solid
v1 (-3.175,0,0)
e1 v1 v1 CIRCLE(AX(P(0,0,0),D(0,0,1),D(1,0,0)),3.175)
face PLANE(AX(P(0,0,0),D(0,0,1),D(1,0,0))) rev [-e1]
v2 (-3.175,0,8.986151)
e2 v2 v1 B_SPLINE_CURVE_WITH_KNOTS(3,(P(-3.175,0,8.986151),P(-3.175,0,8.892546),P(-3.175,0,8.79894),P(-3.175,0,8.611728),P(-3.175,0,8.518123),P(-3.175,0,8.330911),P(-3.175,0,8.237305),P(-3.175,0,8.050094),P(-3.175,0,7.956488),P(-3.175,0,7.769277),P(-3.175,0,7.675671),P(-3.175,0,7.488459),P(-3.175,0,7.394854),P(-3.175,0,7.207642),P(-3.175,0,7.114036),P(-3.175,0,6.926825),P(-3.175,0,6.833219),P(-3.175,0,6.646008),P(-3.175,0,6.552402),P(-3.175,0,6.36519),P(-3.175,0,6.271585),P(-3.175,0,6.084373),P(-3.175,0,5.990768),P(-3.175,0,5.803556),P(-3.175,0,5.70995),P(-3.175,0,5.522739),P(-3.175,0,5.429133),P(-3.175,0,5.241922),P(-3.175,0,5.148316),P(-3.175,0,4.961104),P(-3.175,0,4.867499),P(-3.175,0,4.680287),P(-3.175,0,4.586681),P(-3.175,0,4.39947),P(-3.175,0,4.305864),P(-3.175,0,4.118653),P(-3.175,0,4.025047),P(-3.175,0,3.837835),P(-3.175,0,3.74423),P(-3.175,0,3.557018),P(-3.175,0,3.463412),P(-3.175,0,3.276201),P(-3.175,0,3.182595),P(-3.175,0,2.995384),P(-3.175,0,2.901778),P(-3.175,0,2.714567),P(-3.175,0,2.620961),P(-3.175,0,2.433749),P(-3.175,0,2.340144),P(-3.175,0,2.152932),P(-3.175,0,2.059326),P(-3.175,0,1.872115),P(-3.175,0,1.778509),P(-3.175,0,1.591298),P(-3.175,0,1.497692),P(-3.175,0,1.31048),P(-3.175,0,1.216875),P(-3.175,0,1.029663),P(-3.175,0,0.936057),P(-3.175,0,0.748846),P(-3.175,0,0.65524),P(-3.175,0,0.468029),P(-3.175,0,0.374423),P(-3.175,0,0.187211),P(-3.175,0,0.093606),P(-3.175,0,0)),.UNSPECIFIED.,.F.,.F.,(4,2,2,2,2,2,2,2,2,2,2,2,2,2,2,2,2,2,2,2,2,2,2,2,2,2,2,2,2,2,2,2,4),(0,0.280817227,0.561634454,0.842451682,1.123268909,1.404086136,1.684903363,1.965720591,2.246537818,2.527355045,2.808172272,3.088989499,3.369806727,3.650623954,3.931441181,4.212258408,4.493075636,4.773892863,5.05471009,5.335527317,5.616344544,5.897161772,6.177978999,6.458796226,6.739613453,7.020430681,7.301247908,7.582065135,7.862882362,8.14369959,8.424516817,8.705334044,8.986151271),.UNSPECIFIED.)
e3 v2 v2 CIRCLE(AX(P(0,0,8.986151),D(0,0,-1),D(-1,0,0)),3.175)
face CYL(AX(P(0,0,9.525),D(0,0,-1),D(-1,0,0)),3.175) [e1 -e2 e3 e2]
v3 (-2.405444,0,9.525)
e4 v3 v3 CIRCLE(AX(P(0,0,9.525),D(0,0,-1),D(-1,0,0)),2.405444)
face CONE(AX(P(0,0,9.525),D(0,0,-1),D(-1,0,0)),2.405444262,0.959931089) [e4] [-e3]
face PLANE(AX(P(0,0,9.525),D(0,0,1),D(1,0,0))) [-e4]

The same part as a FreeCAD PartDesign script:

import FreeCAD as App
import Part
import Sketcher
from FreeCAD import Vector
Q = App.Units.Quantity


def add_polygon(sketch, points):
    """Adds a closed chain of lines whose ends are joined by coincident constraints."""
    first, n = sketch.GeometryCount, len(points)
    for a, b in zip(points, points[1:] + points[:1]):
        sketch.addGeometry(Part.LineSegment(App.Vector(*a, 0), App.Vector(*b, 0)), False)
    for i in range(n):
        sketch.addConstraint(Sketcher.Constraint("Coincident", first + i, 2, first + (i + 1) % n, 1))

doc = App.newDocument("Part")
body = doc.addObject("PartDesign::Body", "Body")

# Sketch on XY plane
sketch1 = body.newObject("Sketcher::SketchObject", "Sketch")
sketch1.AttachmentSupport = (doc.getObject("XY_Plane"), [""])
sketch1.MapMode = "FlatFace"
sketch1.addGeometry(Part.Circle(Vector(0, 0, 0), Vector(0, 0, 1), 3.2), False)
sketch1.addConstraint(Sketcher.Constraint("Coincident", 0, 3, -1, 1))
sketch1.addConstraint(Sketcher.Constraint("Diameter", 0, Q("0.25 in")))
pad1 = body.newObject("PartDesign::Pad", "Pad")
pad1.Profile = sketch1
pad1.Length = Q("0.375 in")

# Sketch on YZ plane
sketch2 = body.newObject("Sketcher::SketchObject", "Sketch001")
sketch2.AttachmentSupport = (doc.getObject("YZ_Plane"), [""])
sketch2.MapMode = "FlatFace"
add_polygon(sketch2, [(3.2, 9.5), (2.4, 9.5), (3.2, 9)])  # lines 0-2
sketch2.addConstraint(Sketcher.Constraint("Horizontal", 0))
sketch2.addConstraint(Sketcher.Constraint("Vertical", 2))
sketch2.addConstraint(Sketcher.Constraint("Angle", 1, Q("-35 deg")))
sketch2.addConstraint(Sketcher.Constraint("DistanceY", -1, 1, 0, 2, Q("0.375 in")))
sketch2.addConstraint(Sketcher.Constraint("DistanceX", -1, 1, 1, 2, Q("0.125 in")))
sketch2.addConstraint(Sketcher.Constraint("DistanceY", 2, 1, 2, 2, 0.538849))
groove = body.newObject("PartDesign::Groove", "Groove")
groove.Profile = sketch2
groove.ReferenceAxis = (sketch2, ["V_Axis"])
groove.Angle = 360

doc.recompute()
